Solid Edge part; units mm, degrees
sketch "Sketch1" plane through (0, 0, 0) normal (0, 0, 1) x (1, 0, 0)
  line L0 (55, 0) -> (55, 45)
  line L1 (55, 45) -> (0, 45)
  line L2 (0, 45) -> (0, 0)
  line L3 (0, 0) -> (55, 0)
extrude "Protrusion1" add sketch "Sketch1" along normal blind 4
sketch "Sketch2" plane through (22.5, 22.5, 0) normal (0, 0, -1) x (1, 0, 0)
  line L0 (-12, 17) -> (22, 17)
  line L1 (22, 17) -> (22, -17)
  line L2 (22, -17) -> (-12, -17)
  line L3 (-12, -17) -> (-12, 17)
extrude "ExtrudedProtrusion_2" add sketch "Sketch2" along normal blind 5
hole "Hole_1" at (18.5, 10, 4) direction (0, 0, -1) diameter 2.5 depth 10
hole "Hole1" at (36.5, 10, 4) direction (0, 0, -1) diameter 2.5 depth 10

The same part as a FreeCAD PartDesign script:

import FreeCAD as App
import Part
import Sketcher

V = App.Vector

doc = App.newDocument("Part")
body = doc.addObject("PartDesign::Body", "Body")

# Sketch on XY plane
sketch1 = body.newObject("Sketcher::SketchObject", "Sketch")
sketch1.AttachmentSupport = (doc.getObject("XY_Plane"), [""])
sketch1.MapMode = "FlatFace"
sketch1.addGeometry(Part.LineSegment(V(0, 0, 0), V(55, 0, 0)), False)
sketch1.addGeometry(Part.LineSegment(V(55, 0, 0), V(55, 45, 0)), False)
sketch1.addGeometry(Part.LineSegment(V(55, 45, 0), V(0, 45, 0)), False)
sketch1.addGeometry(Part.LineSegment(V(0, 45, 0), V(0, 0, 0)), False)
sketch1.addConstraint(Sketcher.Constraint("Coincident", 0, 2, 1, 1))
sketch1.addConstraint(Sketcher.Constraint("Coincident", 1, 2, 2, 1))
sketch1.addConstraint(Sketcher.Constraint("Coincident", 2, 2, 3, 1))
sketch1.addConstraint(Sketcher.Constraint("Coincident", 3, 2, 0, 1))
sketch1.addConstraint(Sketcher.Constraint("Horizontal", 0))
sketch1.addConstraint(Sketcher.Constraint("Vertical", 1))
sketch1.addConstraint(Sketcher.Constraint("Horizontal", 2))
sketch1.addConstraint(Sketcher.Constraint("Vertical", 3))
sketch1.addConstraint(Sketcher.Constraint("Coincident", 3, 2, -1, 1))
sketch1.addConstraint(Sketcher.Constraint("DistanceX", 0, 1, 0, 2, 55.0))
sketch1.addConstraint(Sketcher.Constraint("DistanceY", 1, 1, 1, 2, 45.0))
pad1 = body.newObject("PartDesign::Pad", "Pad")
pad1.Profile = sketch1
pad1.Length = 4

# Sketch on XY plane
sketch2 = body.newObject("Sketcher::SketchObject", "Sketch001")
sketch2.AttachmentSupport = (doc.getObject("XY_Plane"), [""])
sketch2.MapMode = "FlatFace"
sketch2.addGeometry(Part.LineSegment(V(44.5, 5.5, 0), V(10.5, 5.5, 0)), False)
sketch2.addGeometry(Part.LineSegment(V(10.5, 5.5, 0), V(10.5, 39.5, 0)), False)
sketch2.addGeometry(Part.LineSegment(V(10.5, 39.5, 0), V(44.5, 39.5, 0)), False)
sketch2.addGeometry(Part.LineSegment(V(44.5, 39.5, 0), V(44.5, 5.5, 0)), False)
sketch2.addConstraint(Sketcher.Constraint("Coincident", 0, 2, 1, 1))
sketch2.addConstraint(Sketcher.Constraint("Coincident", 1, 2, 2, 1))
sketch2.addConstraint(Sketcher.Constraint("Coincident", 2, 2, 3, 1))
sketch2.addConstraint(Sketcher.Constraint("Coincident", 3, 2, 0, 1))
sketch2.addConstraint(Sketcher.Constraint("Horizontal", 0))
sketch2.addConstraint(Sketcher.Constraint("Vertical", 1))
sketch2.addConstraint(Sketcher.Constraint("Horizontal", 2))
sketch2.addConstraint(Sketcher.Constraint("Vertical", 3))
sketch2.addConstraint(Sketcher.Constraint("Equal", 2, 1))
sketch2.addConstraint(Sketcher.Constraint("DistanceX", 0, 2, 0, 1, 34.0))
sketch2.addConstraint(Sketcher.Constraint("DistanceX", -1, 1, 0, 2, 10.5))
sketch2.addConstraint(Sketcher.Constraint("DistanceY", -1, 1, 0, 2, 5.5))
pad2 = body.newObject("PartDesign::Pad", "Pad001")
pad2.Profile = sketch2
pad2.Length = 5
pad2.Reversed = True

# Sketch on XY plane
sketch3 = body.newObject("Sketcher::SketchObject", "Sketch002")
sketch3.AttachmentSupport = (doc.getObject("XY_Plane"), [""])
sketch3.MapMode = "FlatFace"
sketch3.AttachmentOffset = App.Placement(V(0, 0, 4), App.Rotation())
sketch3.addGeometry(Part.Circle(V(18.5, 10, 0), V(0, 0, 1), 1.25), False)
sketch3.addConstraint(Sketcher.Constraint("Diameter", 0, 2.5))
sketch3.addConstraint(Sketcher.Constraint("DistanceY", -1, 1, 0, 3, 10.0))
sketch3.addConstraint(Sketcher.Constraint("DistanceX", -1, 1, 0, 3, 18.5))
doc.recompute()
hole = body.newObject("PartDesign::Hole", "Hole")
hole.Profile = sketch3
hole.ThreadType = "None"
hole.Diameter = 2.5
hole.DepthType = "Dimension"
hole.Depth = 10
hole.DrillPoint = "Flat"

# Sketch on XY plane
sketch4 = body.newObject("Sketcher::SketchObject", "Sketch003")
sketch4.AttachmentSupport = (doc.getObject("XY_Plane"), [""])
sketch4.MapMode = "FlatFace"
sketch4.AttachmentOffset = App.Placement(V(0, 0, 4), App.Rotation())
sketch4.addGeometry(Part.Circle(V(36.5, 10, 0), V(0, 0, 1), 1.25), False)
sketch4.addConstraint(Sketcher.Constraint("Diameter", 0, 2.5))
sketch4.addConstraint(Sketcher.Constraint("DistanceY", -1, 1, 0, 3, 10.0))
sketch4.addConstraint(Sketcher.Constraint("DistanceX", -1, 1, 0, 3, 36.5))
doc.recompute()
hole2 = body.newObject("PartDesign::Hole", "Hole001")
hole2.Profile = sketch4
hole2.ThreadType = "None"
hole2.Diameter = 2.5
hole2.DepthType = "Dimension"
hole2.Depth = 10
hole2.DrillPoint = "Flat"

doc.recompute()
